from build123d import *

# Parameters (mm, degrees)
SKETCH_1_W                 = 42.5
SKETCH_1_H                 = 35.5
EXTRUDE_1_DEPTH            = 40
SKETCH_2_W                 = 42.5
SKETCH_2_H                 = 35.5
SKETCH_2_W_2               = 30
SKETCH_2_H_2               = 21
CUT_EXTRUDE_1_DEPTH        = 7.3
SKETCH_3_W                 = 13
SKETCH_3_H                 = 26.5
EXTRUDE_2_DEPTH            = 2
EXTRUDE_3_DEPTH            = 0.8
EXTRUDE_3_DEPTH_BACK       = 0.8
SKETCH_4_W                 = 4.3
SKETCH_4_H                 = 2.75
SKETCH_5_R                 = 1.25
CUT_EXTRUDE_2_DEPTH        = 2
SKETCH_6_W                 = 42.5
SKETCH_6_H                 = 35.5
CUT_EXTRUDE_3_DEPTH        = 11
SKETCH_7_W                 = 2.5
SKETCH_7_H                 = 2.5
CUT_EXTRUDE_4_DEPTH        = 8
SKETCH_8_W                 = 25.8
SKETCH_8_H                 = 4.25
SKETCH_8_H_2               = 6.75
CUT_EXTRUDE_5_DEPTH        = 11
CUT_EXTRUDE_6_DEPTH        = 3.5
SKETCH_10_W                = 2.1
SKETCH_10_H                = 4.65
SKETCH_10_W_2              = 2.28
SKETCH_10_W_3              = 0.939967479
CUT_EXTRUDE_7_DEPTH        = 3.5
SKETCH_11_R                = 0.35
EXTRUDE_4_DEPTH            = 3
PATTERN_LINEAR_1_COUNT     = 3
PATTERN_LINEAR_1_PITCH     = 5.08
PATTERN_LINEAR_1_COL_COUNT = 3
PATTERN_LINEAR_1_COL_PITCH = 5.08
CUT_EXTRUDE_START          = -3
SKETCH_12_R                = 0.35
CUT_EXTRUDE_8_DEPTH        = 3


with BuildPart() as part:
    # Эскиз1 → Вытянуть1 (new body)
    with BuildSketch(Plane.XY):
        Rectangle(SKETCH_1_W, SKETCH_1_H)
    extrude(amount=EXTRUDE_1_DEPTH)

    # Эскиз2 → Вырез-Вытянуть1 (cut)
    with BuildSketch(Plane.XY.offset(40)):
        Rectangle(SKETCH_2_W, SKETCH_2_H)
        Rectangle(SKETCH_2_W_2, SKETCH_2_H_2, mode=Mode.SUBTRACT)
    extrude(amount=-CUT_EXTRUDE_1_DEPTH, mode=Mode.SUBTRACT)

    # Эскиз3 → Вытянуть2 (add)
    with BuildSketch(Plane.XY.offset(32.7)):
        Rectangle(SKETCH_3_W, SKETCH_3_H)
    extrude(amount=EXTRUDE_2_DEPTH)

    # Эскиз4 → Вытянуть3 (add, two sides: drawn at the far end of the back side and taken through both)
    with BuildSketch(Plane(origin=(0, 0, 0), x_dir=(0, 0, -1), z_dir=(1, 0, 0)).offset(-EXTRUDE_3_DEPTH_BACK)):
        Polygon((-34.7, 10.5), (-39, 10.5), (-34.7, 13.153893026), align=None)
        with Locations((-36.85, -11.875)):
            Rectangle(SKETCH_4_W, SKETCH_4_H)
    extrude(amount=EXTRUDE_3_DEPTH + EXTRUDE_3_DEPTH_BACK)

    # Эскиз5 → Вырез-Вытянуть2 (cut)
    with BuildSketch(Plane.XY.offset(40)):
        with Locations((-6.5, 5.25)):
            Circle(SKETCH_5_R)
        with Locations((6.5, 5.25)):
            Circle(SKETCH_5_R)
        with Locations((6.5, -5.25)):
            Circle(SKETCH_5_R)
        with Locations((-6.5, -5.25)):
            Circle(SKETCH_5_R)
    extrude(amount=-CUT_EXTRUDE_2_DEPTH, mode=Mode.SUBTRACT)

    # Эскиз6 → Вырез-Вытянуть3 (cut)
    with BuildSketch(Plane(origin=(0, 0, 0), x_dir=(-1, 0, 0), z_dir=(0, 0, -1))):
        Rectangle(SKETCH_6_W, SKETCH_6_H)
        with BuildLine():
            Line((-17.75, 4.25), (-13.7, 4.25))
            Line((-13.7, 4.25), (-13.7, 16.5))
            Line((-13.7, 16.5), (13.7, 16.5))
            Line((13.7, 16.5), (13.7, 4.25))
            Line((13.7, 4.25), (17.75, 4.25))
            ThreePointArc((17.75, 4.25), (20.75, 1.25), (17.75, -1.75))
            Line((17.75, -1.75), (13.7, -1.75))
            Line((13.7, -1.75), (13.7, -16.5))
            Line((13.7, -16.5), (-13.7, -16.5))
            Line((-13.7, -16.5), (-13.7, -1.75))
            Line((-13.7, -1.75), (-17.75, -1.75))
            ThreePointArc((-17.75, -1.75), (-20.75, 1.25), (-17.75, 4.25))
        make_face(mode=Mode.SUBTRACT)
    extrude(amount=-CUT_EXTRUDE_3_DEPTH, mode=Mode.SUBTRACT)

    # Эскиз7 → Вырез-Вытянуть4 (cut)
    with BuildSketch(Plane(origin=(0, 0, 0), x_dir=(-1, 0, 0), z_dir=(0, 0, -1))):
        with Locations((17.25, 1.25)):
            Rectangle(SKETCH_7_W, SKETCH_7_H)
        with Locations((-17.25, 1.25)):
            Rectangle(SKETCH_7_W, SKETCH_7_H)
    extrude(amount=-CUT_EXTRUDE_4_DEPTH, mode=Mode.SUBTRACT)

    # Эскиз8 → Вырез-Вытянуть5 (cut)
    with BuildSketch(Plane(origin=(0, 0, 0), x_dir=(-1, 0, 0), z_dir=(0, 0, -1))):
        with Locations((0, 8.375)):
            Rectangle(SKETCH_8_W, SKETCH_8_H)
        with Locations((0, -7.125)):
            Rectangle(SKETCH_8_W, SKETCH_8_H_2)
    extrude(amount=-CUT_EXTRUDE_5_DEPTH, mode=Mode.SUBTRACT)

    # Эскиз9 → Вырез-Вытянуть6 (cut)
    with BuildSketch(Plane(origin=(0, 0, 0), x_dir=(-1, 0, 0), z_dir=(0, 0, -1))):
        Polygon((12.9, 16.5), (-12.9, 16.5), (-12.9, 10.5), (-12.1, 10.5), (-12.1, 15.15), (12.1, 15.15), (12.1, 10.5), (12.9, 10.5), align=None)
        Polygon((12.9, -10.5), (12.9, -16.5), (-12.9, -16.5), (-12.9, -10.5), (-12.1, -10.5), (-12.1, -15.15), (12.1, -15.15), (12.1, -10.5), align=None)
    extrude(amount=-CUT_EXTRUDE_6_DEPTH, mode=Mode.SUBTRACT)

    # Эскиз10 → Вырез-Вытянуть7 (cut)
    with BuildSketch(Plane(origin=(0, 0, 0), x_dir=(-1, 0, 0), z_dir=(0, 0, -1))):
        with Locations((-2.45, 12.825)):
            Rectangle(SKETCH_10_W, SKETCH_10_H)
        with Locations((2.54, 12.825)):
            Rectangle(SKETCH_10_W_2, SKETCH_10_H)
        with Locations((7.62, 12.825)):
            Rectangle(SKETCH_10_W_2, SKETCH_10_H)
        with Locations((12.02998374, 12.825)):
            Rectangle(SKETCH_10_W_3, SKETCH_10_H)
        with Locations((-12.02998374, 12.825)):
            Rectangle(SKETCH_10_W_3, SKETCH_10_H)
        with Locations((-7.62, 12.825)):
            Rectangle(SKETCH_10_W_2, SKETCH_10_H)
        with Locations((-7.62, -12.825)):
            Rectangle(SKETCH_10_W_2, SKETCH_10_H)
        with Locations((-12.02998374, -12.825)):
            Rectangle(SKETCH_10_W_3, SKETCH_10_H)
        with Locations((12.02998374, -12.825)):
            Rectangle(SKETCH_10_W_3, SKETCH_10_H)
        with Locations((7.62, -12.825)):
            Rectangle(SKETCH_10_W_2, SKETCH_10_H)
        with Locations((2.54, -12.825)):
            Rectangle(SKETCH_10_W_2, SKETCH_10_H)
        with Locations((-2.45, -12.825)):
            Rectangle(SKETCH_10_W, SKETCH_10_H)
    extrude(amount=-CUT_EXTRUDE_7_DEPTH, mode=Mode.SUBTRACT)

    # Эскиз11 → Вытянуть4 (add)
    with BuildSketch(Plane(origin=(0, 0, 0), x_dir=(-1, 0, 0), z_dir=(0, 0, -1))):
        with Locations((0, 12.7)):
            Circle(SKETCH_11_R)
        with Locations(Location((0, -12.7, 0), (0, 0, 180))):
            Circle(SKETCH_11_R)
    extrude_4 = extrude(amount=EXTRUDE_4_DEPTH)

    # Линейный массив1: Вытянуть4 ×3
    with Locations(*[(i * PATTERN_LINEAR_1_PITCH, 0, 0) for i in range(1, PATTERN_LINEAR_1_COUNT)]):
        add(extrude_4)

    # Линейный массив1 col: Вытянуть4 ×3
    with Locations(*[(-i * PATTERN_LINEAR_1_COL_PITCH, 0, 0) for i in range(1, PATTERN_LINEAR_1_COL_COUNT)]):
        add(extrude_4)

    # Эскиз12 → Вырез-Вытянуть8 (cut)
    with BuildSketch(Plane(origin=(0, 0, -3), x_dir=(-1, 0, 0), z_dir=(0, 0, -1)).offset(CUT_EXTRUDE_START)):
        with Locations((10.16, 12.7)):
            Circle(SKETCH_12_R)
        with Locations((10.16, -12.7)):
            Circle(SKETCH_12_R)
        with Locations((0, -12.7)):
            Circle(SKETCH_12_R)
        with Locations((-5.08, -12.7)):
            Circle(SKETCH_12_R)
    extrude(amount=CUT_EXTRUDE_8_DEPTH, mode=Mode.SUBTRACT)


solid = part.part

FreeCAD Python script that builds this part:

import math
import FreeCAD as App
import Part
import Sketcher

doc = App.newDocument("Part")
params = doc.addObject("Spreadsheet::Sheet", "Params")
for row, (alias, value) in enumerate([
    ("sketch1_width", "42.5 mm"),
    ("sketch1_height", "35.5 mm"),
    ("pad1_length", "40 mm"),
    ("sketch2_width", "30 mm"),
    ("sketch2_height", "21 mm"),
    ("sketch2_width2", "42.5 mm"),
    ("sketch2_height2", "35.5 mm"),
    ("pocket1_length", "7.3 mm"),
    ("sketch3_width", "13 mm"),
    ("sketch3_height", "26.5 mm"),
    ("pad2_length", "2 mm"),
    ("sketch4_height", "4.3 mm"),
    ("sketch4_width", "2.75 mm"),
    ("pad3_length", "0.8 mm"),
    ("pad3_length2", "0.8 mm"),
    ("sketch5_diameter", "2.5 mm"),
    ("pocket2_length", "2 mm"),
    ("sketch6_radius", "3 mm"),
    ("sketch6_width", "42.5 mm"),
    ("sketch6_width2", "27.4 mm"),
    ("sketch6_height", "35.5 mm"),
    ("sketch6_height2", "12.25 mm"),
    ("pocket3_length", "11 mm"),
    ("sketch7_width", "2.5 mm"),
    ("pocket4_length", "8 mm"),
    ("sketch8_width", "25.8 mm"),
    ("sketch8_height", "4.25 mm"),
    ("pocket5_length", "11 mm"),
    ("sketch9_height", "6 mm"),
    ("sketch9_width", "25.8 mm"),
    ("sketch9_width2", "0.8 mm"),
    ("sketch9_height2", "4.65 mm"),
    ("pocket6_length", "3.5 mm"),
    ("sketch10_width", "2.1 mm"),
    ("sketch10_width2", "2.28 mm"),
    ("sketch10_height", "4.65 mm"),
    ("pocket7_length", "3.5 mm"),
    ("sketch11_diameter", "0.7 mm"),
    ("pad4_length", "3 mm"),
    ("linearpattern_pitch", "5.08 mm"),
    ("linearpattern2_pitch", "5.08 mm"),
    ("sketch12_diameter", "0.7 mm"),
    ("pocket8_length", "3 mm"),
], start=1):
    params.set(f"A{row}", alias)
    params.set(f"B{row}", "=" + value)
    params.setAlias(f"B{row}", alias)

body = doc.addObject("PartDesign::Body", "Body")

# Sketch on XY plane
sketch1 = body.newObject("Sketcher::SketchObject", "Sketch")
sketch1.AttachmentSupport = (doc.getObject("XY_Plane"), [""])
sketch1.MapMode = "FlatFace"
sketch1.addGeometry(Part.LineSegment(App.Vector(-21, 18, 0), App.Vector(-21, -18, 0)), False)
sketch1.addGeometry(Part.LineSegment(App.Vector(-21, -18, 0), App.Vector(21, -18, 0)), False)
sketch1.addGeometry(Part.LineSegment(App.Vector(21, -18, 0), App.Vector(21, 18, 0)), False)
sketch1.addGeometry(Part.LineSegment(App.Vector(21, 18, 0), App.Vector(-21, 18, 0)), False)
sketch1.addConstraint(Sketcher.Constraint("Coincident", 0, 2, 1, 1))
sketch1.addConstraint(Sketcher.Constraint("Coincident", 1, 2, 2, 1))
sketch1.addConstraint(Sketcher.Constraint("Coincident", 2, 2, 3, 1))
sketch1.addConstraint(Sketcher.Constraint("Coincident", 3, 2, 0, 1))
sketch1.addConstraint(Sketcher.Constraint("Vertical", 0))
sketch1.addConstraint(Sketcher.Constraint("Horizontal", 1))
sketch1.addConstraint(Sketcher.Constraint("Vertical", 2))
sketch1.addConstraint(Sketcher.Constraint("Horizontal", 3))
sketch1.addConstraint(Sketcher.Constraint("Symmetric", 0, 2, 2, 2, -1, 1))
sketch1.addConstraint(Sketcher.Constraint("DistanceX", 1, 1, 1, 2, 42.5))
sketch1.addConstraint(Sketcher.Constraint("DistanceY", 0, 2, 0, 1, 35.5))
sketch1.setExpression("Constraints[9]", "Params.sketch1_width")
sketch1.setExpression("Constraints[10]", "Params.sketch1_height")
pad1 = body.newObject("PartDesign::Pad", "Pad")
pad1.Profile = sketch1
pad1.setExpression("Length", "Params.pad1_length")

# Sketch on XY plane
sketch2 = body.newObject("Sketcher::SketchObject", "Sketch001")
sketch2.AttachmentSupport = (doc.getObject("XY_Plane"), [""])
sketch2.MapMode = "FlatFace"
sketch2.AttachmentOffset = App.Placement(App.Vector(0, 0, 40), App.Rotation())
sketch2.addGeometry(Part.LineSegment(App.Vector(-21, 18, 0), App.Vector(-21, -18, 0)), False)
sketch2.addGeometry(Part.LineSegment(App.Vector(-21, -18, 0), App.Vector(21, -18, 0)), False)
sketch2.addGeometry(Part.LineSegment(App.Vector(21, -18, 0), App.Vector(21, 18, 0)), False)
sketch2.addGeometry(Part.LineSegment(App.Vector(21, 18, 0), App.Vector(-21, 18, 0)), False)
sketch2.addGeometry(Part.LineSegment(App.Vector(15, -10, 0), App.Vector(-15, -10, 0)), False)
sketch2.addGeometry(Part.LineSegment(App.Vector(-15, -10, 0), App.Vector(-15, 10, 0)), False)
sketch2.addGeometry(Part.LineSegment(App.Vector(-15, 10, 0), App.Vector(15, 10, 0)), False)
sketch2.addGeometry(Part.LineSegment(App.Vector(15, 10, 0), App.Vector(15, -10, 0)), False)
sketch2.addConstraint(Sketcher.Constraint("Coincident", 0, 2, 1, 1))
sketch2.addConstraint(Sketcher.Constraint("Coincident", 1, 2, 2, 1))
sketch2.addConstraint(Sketcher.Constraint("Coincident", 2, 2, 3, 1))
sketch2.addConstraint(Sketcher.Constraint("Coincident", 3, 2, 0, 1))
sketch2.addConstraint(Sketcher.Constraint("Coincident", 4, 2, 5, 1))
sketch2.addConstraint(Sketcher.Constraint("Coincident", 5, 2, 6, 1))
sketch2.addConstraint(Sketcher.Constraint("Coincident", 6, 2, 7, 1))
sketch2.addConstraint(Sketcher.Constraint("Coincident", 7, 2, 4, 1))
sketch2.addConstraint(Sketcher.Constraint("Vertical", 0))
sketch2.addConstraint(Sketcher.Constraint("Horizontal", 1))
sketch2.addConstraint(Sketcher.Constraint("Vertical", 2))
sketch2.addConstraint(Sketcher.Constraint("Horizontal", 3))
sketch2.addConstraint(Sketcher.Constraint("Horizontal", 4))
sketch2.addConstraint(Sketcher.Constraint("Vertical", 5))
sketch2.addConstraint(Sketcher.Constraint("Horizontal", 6))
sketch2.addConstraint(Sketcher.Constraint("Vertical", 7))
sketch2.addConstraint(Sketcher.Constraint("Symmetric", 0, 2, 2, 2, -1, 1))
sketch2.addConstraint(Sketcher.Constraint("Symmetric", 4, 2, 6, 2, -1, 1))
sketch2.addConstraint(Sketcher.Constraint("DistanceX", 4, 2, 4, 1, 30.0))
sketch2.addConstraint(Sketcher.Constraint("DistanceY", 5, 1, 5, 2, 21.0))
sketch2.addConstraint(Sketcher.Constraint("DistanceX", 1, 1, 1, 2, 42.5))
sketch2.addConstraint(Sketcher.Constraint("DistanceY", 0, 2, 0, 1, 35.5))
sketch2.setExpression("Constraints[18]", "Params.sketch2_width")
sketch2.setExpression("Constraints[19]", "Params.sketch2_height")
sketch2.setExpression("Constraints[20]", "Params.sketch2_width2")
sketch2.setExpression("Constraints[21]", "Params.sketch2_height2")
pocket1 = body.newObject("PartDesign::Pocket", "Pocket")
pocket1.Profile = sketch2
pocket1.setExpression("Length", "Params.pocket1_length")

# Sketch on XY plane
sketch3 = body.newObject("Sketcher::SketchObject", "Sketch002")
sketch3.AttachmentSupport = (doc.getObject("XY_Plane"), [""])
sketch3.MapMode = "FlatFace"
sketch3.AttachmentOffset = App.Placement(App.Vector(0, 0, 32.7), App.Rotation())
sketch3.addGeometry(Part.LineSegment(App.Vector(-6, 13, 0), App.Vector(-6, -13, 0)), False)
sketch3.addGeometry(Part.LineSegment(App.Vector(-6, -13, 0), App.Vector(6, -13, 0)), False)
sketch3.addGeometry(Part.LineSegment(App.Vector(6, -13, 0), App.Vector(6, 13, 0)), False)
sketch3.addGeometry(Part.LineSegment(App.Vector(6, 13, 0), App.Vector(-6, 13, 0)), False)
sketch3.addConstraint(Sketcher.Constraint("Coincident", 0, 2, 1, 1))
sketch3.addConstraint(Sketcher.Constraint("Coincident", 1, 2, 2, 1))
sketch3.addConstraint(Sketcher.Constraint("Coincident", 2, 2, 3, 1))
sketch3.addConstraint(Sketcher.Constraint("Coincident", 3, 2, 0, 1))
sketch3.addConstraint(Sketcher.Constraint("Vertical", 0))
sketch3.addConstraint(Sketcher.Constraint("Horizontal", 1))
sketch3.addConstraint(Sketcher.Constraint("Vertical", 2))
sketch3.addConstraint(Sketcher.Constraint("Horizontal", 3))
sketch3.addConstraint(Sketcher.Constraint("Symmetric", 0, 2, 2, 2, -1, 1))
sketch3.addConstraint(Sketcher.Constraint("DistanceX", 1, 1, 1, 2, 13.0))
sketch3.addConstraint(Sketcher.Constraint("DistanceY", 0, 2, 0, 1, 26.5))
sketch3.setExpression("Constraints[9]", "Params.sketch3_width")
sketch3.setExpression("Constraints[10]", "Params.sketch3_height")
pad2 = body.newObject("PartDesign::Pad", "Pad001")
pad2.Profile = sketch3
pad2.setExpression("Length", "Params.pad2_length")

# Sketch on YZ plane
sketch4 = body.newObject("Sketcher::SketchObject", "Sketch003")
sketch4.AttachmentSupport = (doc.getObject("YZ_Plane"), [""])
sketch4.MapMode = "FlatFace"
sketch4.addGeometry(Part.LineSegment(App.Vector(10.5, 39, 0), App.Vector(10.5, 34.7, 0)), False)
sketch4.addGeometry(Part.LineSegment(App.Vector(10.5, 34.7, 0), App.Vector(13.2, 34.7, 0)), False)
sketch4.addGeometry(Part.LineSegment(App.Vector(13.2, 34.7, 0), App.Vector(10.5, 39, 0)), False)
sketch4.addGeometry(Part.LineSegment(App.Vector(-10.5, 39, 0), App.Vector(-13.2, 39, 0)), False)
sketch4.addGeometry(Part.LineSegment(App.Vector(-13.2, 39, 0), App.Vector(-13.2, 34.7, 0)), False)
sketch4.addGeometry(Part.LineSegment(App.Vector(-13.2, 34.7, 0), App.Vector(-10.5, 34.7, 0)), False)
sketch4.addGeometry(Part.LineSegment(App.Vector(-10.5, 34.7, 0), App.Vector(-10.5, 39, 0)), False)
sketch4.addConstraint(Sketcher.Constraint("Coincident", 0, 2, 1, 1))
sketch4.addConstraint(Sketcher.Constraint("Coincident", 1, 2, 2, 1))
sketch4.addConstraint(Sketcher.Constraint("Coincident", 2, 2, 0, 1))
sketch4.addConstraint(Sketcher.Constraint("Coincident", 3, 2, 4, 1))
sketch4.addConstraint(Sketcher.Constraint("Coincident", 4, 2, 5, 1))
sketch4.addConstraint(Sketcher.Constraint("Coincident", 5, 2, 6, 1))
sketch4.addConstraint(Sketcher.Constraint("Coincident", 6, 2, 3, 1))
sketch4.addConstraint(Sketcher.Constraint("Vertical", 0))
sketch4.addConstraint(Sketcher.Constraint("Horizontal", 1))
sketch4.addConstraint(Sketcher.Constraint("Horizontal", 3))
sketch4.addConstraint(Sketcher.Constraint("Vertical", 4))
sketch4.addConstraint(Sketcher.Constraint("Horizontal", 5))
sketch4.addConstraint(Sketcher.Constraint("Vertical", 6))
sketch4.addConstraint(Sketcher.Constraint("Symmetric", 0, 2, 5, 2, -2))
sketch4.addConstraint(Sketcher.Constraint("Horizontal", 2, 2, 3, 2))
sketch4.addConstraint(Sketcher.Constraint("DistanceY", 0, 2, 0, 1, 4.3))
sketch4.addConstraint(Sketcher.Constraint("DistanceY", -1, 1, 2, 2, 39.0))
sketch4.addConstraint(Sketcher.Constraint("DistanceX", 5, 2, 0, 2, 21.0))
sketch4.addConstraint(Sketcher.Constraint("DistanceX", 3, 2, 3, 1, 2.75))
sketch4.addConstraint(Sketcher.Constraint("DistanceX", 1, 1, 1, 2, 2.653893))
sketch4.setExpression("Constraints[15]", "Params.sketch4_height")
sketch4.setExpression("Constraints[18]", "Params.sketch4_width")
pad3 = body.newObject("PartDesign::Pad", "Pad002")
pad3.Profile = sketch4
pad3.Type = "TwoLengths"
pad3.setExpression("Length", "Params.pad3_length")
pad3.setExpression("Length2", "Params.pad3_length2")

# Sketch on XY plane
sketch5 = body.newObject("Sketcher::SketchObject", "Sketch004")
sketch5.AttachmentSupport = (doc.getObject("XY_Plane"), [""])
sketch5.MapMode = "FlatFace"
sketch5.AttachmentOffset = App.Placement(App.Vector(0, 0, 40), App.Rotation())
sketch5.addGeometry(Part.Circle(App.Vector(-6.5, 5.2, 0), App.Vector(0, 0, 1), 1.2), False)
sketch5.addGeometry(Part.Circle(App.Vector(6.5, 5.2, 0), App.Vector(0, 0, 1), 1.2), False)
sketch5.addGeometry(Part.Circle(App.Vector(6.5, -5.2, 0), App.Vector(0, 0, 1), 1.2), False)
sketch5.addGeometry(Part.Circle(App.Vector(-6.5, -5.2, 0), App.Vector(0, 0, 1), 1.2), False)
sketch5.addConstraint(Sketcher.Constraint("Equal", 0, 1))
sketch5.addConstraint(Sketcher.Constraint("Equal", 1, 2))
sketch5.addConstraint(Sketcher.Constraint("Equal", 2, 3))
sketch5.addConstraint(Sketcher.Constraint("Symmetric", 0, 3, 2, 3, -1, 1))
sketch5.addConstraint(Sketcher.Constraint("Symmetric", 1, 3, 3, 3, -1, 1))
sketch5.addConstraint(Sketcher.Constraint("Symmetric", 0, 3, 1, 3, -2))
sketch5.addConstraint(Sketcher.Constraint("Diameter", 0, 2.5))
sketch5.addConstraint(Sketcher.Constraint("DistanceX", 0, 3, 1, 3, 13.0))
sketch5.addConstraint(Sketcher.Constraint("DistanceY", 2, 3, 1, 3, 10.5))
sketch5.setExpression("Constraints[6]", "Params.sketch5_diameter")
pocket2 = body.newObject("PartDesign::Pocket", "Pocket001")
pocket2.Profile = sketch5
pocket2.setExpression("Length", "Params.pocket2_length")

# Sketch on XY plane
sketch6 = body.newObject("Sketcher::SketchObject", "Sketch005")
sketch6.AttachmentSupport = (doc.getObject("XY_Plane"), [""])
sketch6.MapMode = "FlatFace"
sketch6.addGeometry(Part.LineSegment(App.Vector(21.2, 17.8, 0), App.Vector(21.2, -17.8, 0)), False)
sketch6.addGeometry(Part.LineSegment(App.Vector(21.2, -17.8, 0), App.Vector(-21.2, -17.8, 0)), False)
sketch6.addGeometry(Part.LineSegment(App.Vector(-21.2, -17.8, 0), App.Vector(-21.2, 17.8, 0)), False)
sketch6.addGeometry(Part.LineSegment(App.Vector(-21.2, 17.8, 0), App.Vector(21.2, 17.8, 0)), False)
sketch6.addGeometry(Part.ArcOfCircle(Part.Circle(App.Vector(17.8, 1.2, 0), App.Vector(0, 0, 1), 3), math.radians(-90), math.radians(90)), False)
sketch6.addGeometry(Part.LineSegment(App.Vector(17.8, 4.2, 0), App.Vector(13.7, 4.2, 0)), False)
sketch6.addGeometry(Part.LineSegment(App.Vector(13.7, 4.2, 0), App.Vector(13.7, 16.5, 0)), False)
sketch6.addGeometry(Part.LineSegment(App.Vector(13.7, 16.5, 0), App.Vector(-13.7, 16.5, 0)), False)
sketch6.addGeometry(Part.LineSegment(App.Vector(-13.7, 16.5, 0), App.Vector(-13.7, 4.2, 0)), False)
sketch6.addGeometry(Part.LineSegment(App.Vector(-13.7, 4.2, 0), App.Vector(-17.8, 4.2, 0)), False)
sketch6.addGeometry(Part.ArcOfCircle(Part.Circle(App.Vector(-17.8, 1.2, 0), App.Vector(0, 0, 1), 3), math.radians(90), math.radians(270)), False)
sketch6.addGeometry(Part.LineSegment(App.Vector(-17.8, -1.8, 0), App.Vector(-13.7, -1.8, 0)), False)
sketch6.addGeometry(Part.LineSegment(App.Vector(-13.7, -1.8, 0), App.Vector(-13.7, -16.5, 0)), False)
sketch6.addGeometry(Part.LineSegment(App.Vector(-13.7, -16.5, 0), App.Vector(13.7, -16.5, 0)), False)
sketch6.addGeometry(Part.LineSegment(App.Vector(13.7, -16.5, 0), App.Vector(13.7, -1.8, 0)), False)
sketch6.addGeometry(Part.LineSegment(App.Vector(13.7, -1.8, 0), App.Vector(17.8, -1.8, 0)), False)
sketch6.addConstraint(Sketcher.Constraint("Coincident", 0, 2, 1, 1))
sketch6.addConstraint(Sketcher.Constraint("Coincident", 1, 2, 2, 1))
sketch6.addConstraint(Sketcher.Constraint("Coincident", 2, 2, 3, 1))
sketch6.addConstraint(Sketcher.Constraint("Coincident", 3, 2, 0, 1))
sketch6.addConstraint(Sketcher.Constraint("Tangent", 4, 2, 5, 1))
sketch6.addConstraint(Sketcher.Constraint("Coincident", 5, 2, 6, 1))
sketch6.addConstraint(Sketcher.Constraint("Coincident", 6, 2, 7, 1))
sketch6.addConstraint(Sketcher.Constraint("Coincident", 7, 2, 8, 1))
sketch6.addConstraint(Sketcher.Constraint("Coincident", 8, 2, 9, 1))
sketch6.addConstraint(Sketcher.Constraint("Tangent", 9, 2, 10, 1))
sketch6.addConstraint(Sketcher.Constraint("Tangent", 10, 2, 11, 1))
sketch6.addConstraint(Sketcher.Constraint("Coincident", 11, 2, 12, 1))
sketch6.addConstraint(Sketcher.Constraint("Coincident", 12, 2, 13, 1))
sketch6.addConstraint(Sketcher.Constraint("Coincident", 13, 2, 14, 1))
sketch6.addConstraint(Sketcher.Constraint("Coincident", 14, 2, 15, 1))
sketch6.addConstraint(Sketcher.Constraint("Tangent", 15, 2, 4, 1))
sketch6.addConstraint(Sketcher.Constraint("Vertical", 0))
sketch6.addConstraint(Sketcher.Constraint("Horizontal", 1))
sketch6.addConstraint(Sketcher.Constraint("Vertical", 2))
sketch6.addConstraint(Sketcher.Constraint("Horizontal", 3))
sketch6.addConstraint(Sketcher.Constraint("Horizontal", 5))
sketch6.addConstraint(Sketcher.Constraint("Vertical", 6))
sketch6.addConstraint(Sketcher.Constraint("Horizontal", 7))
sketch6.addConstraint(Sketcher.Constraint("Vertical", 8))
sketch6.addConstraint(Sketcher.Constraint("Horizontal", 9))
sketch6.addConstraint(Sketcher.Constraint("Horizontal", 11))
sketch6.addConstraint(Sketcher.Constraint("Vertical", 12))
sketch6.addConstraint(Sketcher.Constraint("Horizontal", 13))
sketch6.addConstraint(Sketcher.Constraint("Vertical", 14))
sketch6.addConstraint(Sketcher.Constraint("Horizontal", 15))
sketch6.addConstraint(Sketcher.Constraint("Equal", 4, 10))
sketch6.addConstraint(Sketcher.Constraint("Symmetric", 0, 2, 2, 2, -1, 1))
sketch6.addConstraint(Sketcher.Constraint("Symmetric", 6, 2, 12, 2, -1, 1))
sketch6.addConstraint(Sketcher.Constraint("Symmetric", 4, 3, 10, 3, -2))
sketch6.addConstraint(Sketcher.Constraint("Vertical", 8, 2, 11, 2))
sketch6.addConstraint(Sketcher.Constraint("Vertical", 6, 2, 13, 2))
sketch6.addConstraint(Sketcher.Constraint("Radius", 4, 3.0))
sketch6.addConstraint(Sketcher.Constraint("DistanceX", 1, 2, 1, 1, 42.5))
sketch6.addConstraint(Sketcher.Constraint("DistanceX", 7, 2, 7, 1, 27.4))
sketch6.addConstraint(Sketcher.Constraint("DistanceY", 0, 2, 0, 1, 35.5))
sketch6.addConstraint(Sketcher.Constraint("DistanceY", 0, 2, 4, 3, 19.0))
sketch6.addConstraint(Sketcher.Constraint("DistanceX", 10, 3, 0, 2, 39.0))
sketch6.addConstraint(Sketcher.Constraint("DistanceY", 6, 1, 6, 2, 12.25))
sketch6.setExpression("Constraints[36]", "Params.sketch6_radius")
sketch6.setExpression("Constraints[37]", "Params.sketch6_width")
sketch6.setExpression("Constraints[38]", "Params.sketch6_width2")
sketch6.setExpression("Constraints[39]", "Params.sketch6_height")
sketch6.setExpression("Constraints[42]", "Params.sketch6_height2")
pocket3 = body.newObject("PartDesign::Pocket", "Pocket002")
pocket3.Profile = sketch6
pocket3.setExpression("Length", "Params.pocket3_length")
pocket3.Reversed = True

# Sketch on XY plane
sketch7 = body.newObject("Sketcher::SketchObject", "Sketch006")
sketch7.AttachmentSupport = (doc.getObject("XY_Plane"), [""])
sketch7.MapMode = "FlatFace"
sketch7.addGeometry(Part.LineSegment(App.Vector(-16, 2.5, 0), App.Vector(-16, 0, 0)), False)
sketch7.addGeometry(Part.LineSegment(App.Vector(-16, 0, 0), App.Vector(-18.5, 0, 0)), False)
sketch7.addGeometry(Part.LineSegment(App.Vector(-18.5, 0, 0), App.Vector(-18.5, 2.5, 0)), False)
sketch7.addGeometry(Part.LineSegment(App.Vector(-18.5, 2.5, 0), App.Vector(-16, 2.5, 0)), False)
sketch7.addGeometry(Part.LineSegment(App.Vector(18.5, 2.5, 0), App.Vector(18.5, 0, 0)), False)
sketch7.addGeometry(Part.LineSegment(App.Vector(18.5, 0, 0), App.Vector(16, 0, 0)), False)
sketch7.addGeometry(Part.LineSegment(App.Vector(16, 0, 0), App.Vector(16, 2.5, 0)), False)
sketch7.addGeometry(Part.LineSegment(App.Vector(16, 2.5, 0), App.Vector(18.5, 2.5, 0)), False)
sketch7.addConstraint(Sketcher.Constraint("Coincident", 0, 2, 1, 1))
sketch7.addConstraint(Sketcher.Constraint("Coincident", 1, 2, 2, 1))
sketch7.addConstraint(Sketcher.Constraint("Coincident", 2, 2, 3, 1))
sketch7.addConstraint(Sketcher.Constraint("Coincident", 3, 2, 0, 1))
sketch7.addConstraint(Sketcher.Constraint("Coincident", 4, 2, 5, 1))
sketch7.addConstraint(Sketcher.Constraint("Coincident", 5, 2, 6, 1))
sketch7.addConstraint(Sketcher.Constraint("Coincident", 6, 2, 7, 1))
sketch7.addConstraint(Sketcher.Constraint("Coincident", 7, 2, 4, 1))
sketch7.addConstraint(Sketcher.Constraint("Vertical", 0))
sketch7.addConstraint(Sketcher.Constraint("Horizontal", 1))
sketch7.addConstraint(Sketcher.Constraint("Vertical", 2))
sketch7.addConstraint(Sketcher.Constraint("Horizontal", 3))
sketch7.addConstraint(Sketcher.Constraint("Vertical", 4))
sketch7.addConstraint(Sketcher.Constraint("Horizontal", 5))
sketch7.addConstraint(Sketcher.Constraint("Vertical", 6))
sketch7.addConstraint(Sketcher.Constraint("Horizontal", 7))
sketch7.addConstraint(Sketcher.Constraint("Symmetric", 1, 2, 4, 2, -1, 1))
sketch7.addConstraint(Sketcher.Constraint("Symmetric", 0, 2, 5, 2, -2))
sketch7.addConstraint(Sketcher.Constraint("Horizontal", 3, 2, 6, 2))
sketch7.addConstraint(Sketcher.Constraint("Equal", 7, 0))
sketch7.addConstraint(Sketcher.Constraint("DistanceX", 1, 2, 1, 1, 2.5))
sketch7.addConstraint(Sketcher.Constraint("DistanceX", 0, 2, -1, 1, 16.0))
sketch7.setExpression("Constraints[20]", "Params.sketch7_width")
pocket4 = body.newObject("PartDesign::Pocket", "Pocket003")
pocket4.Profile = sketch7
pocket4.setExpression("Length", "Params.pocket4_length")
pocket4.Reversed = True

# Sketch on XY plane
sketch8 = body.newObject("Sketcher::SketchObject", "Sketch007")
sketch8.AttachmentSupport = (doc.getObject("XY_Plane"), [""])
sketch8.MapMode = "FlatFace"
sketch8.addGeometry(Part.LineSegment(App.Vector(12.9, 10.5, 0), App.Vector(12.9, 6.2, 0)), False)
sketch8.addGeometry(Part.LineSegment(App.Vector(12.9, 6.2, 0), App.Vector(-12.9, 6.2, 0)), False)
sketch8.addGeometry(Part.LineSegment(App.Vector(-12.9, 6.2, 0), App.Vector(-12.9, 10.5, 0)), False)
sketch8.addGeometry(Part.LineSegment(App.Vector(-12.9, 10.5, 0), App.Vector(12.9, 10.5, 0)), False)
sketch8.addGeometry(Part.LineSegment(App.Vector(12.9, -3.8, 0), App.Vector(12.9, -10.5, 0)), False)
sketch8.addGeometry(Part.LineSegment(App.Vector(12.9, -10.5, 0), App.Vector(-12.9, -10.5, 0)), False)
sketch8.addGeometry(Part.LineSegment(App.Vector(-12.9, -10.5, 0), App.Vector(-12.9, -3.8, 0)), False)
sketch8.addGeometry(Part.LineSegment(App.Vector(-12.9, -3.8, 0), App.Vector(12.9, -3.8, 0)), False)
sketch8.addConstraint(Sketcher.Constraint("Coincident", 0, 2, 1, 1))
sketch8.addConstraint(Sketcher.Constraint("Coincident", 1, 2, 2, 1))
sketch8.addConstraint(Sketcher.Constraint("Coincident", 2, 2, 3, 1))
sketch8.addConstraint(Sketcher.Constraint("Coincident", 3, 2, 0, 1))
sketch8.addConstraint(Sketcher.Constraint("Coincident", 4, 2, 5, 1))
sketch8.addConstraint(Sketcher.Constraint("Coincident", 5, 2, 6, 1))
sketch8.addConstraint(Sketcher.Constraint("Coincident", 6, 2, 7, 1))
sketch8.addConstraint(Sketcher.Constraint("Coincident", 7, 2, 4, 1))
sketch8.addConstraint(Sketcher.Constraint("Vertical", 0))
sketch8.addConstraint(Sketcher.Constraint("Horizontal", 1))
sketch8.addConstraint(Sketcher.Constraint("Vertical", 2))
sketch8.addConstraint(Sketcher.Constraint("Horizontal", 3))
sketch8.addConstraint(Sketcher.Constraint("Vertical", 4))
sketch8.addConstraint(Sketcher.Constraint("Horizontal", 5))
sketch8.addConstraint(Sketcher.Constraint("Vertical", 6))
sketch8.addConstraint(Sketcher.Constraint("Horizontal", 7))
sketch8.addConstraint(Sketcher.Constraint("Symmetric", 2, 2, 4, 2, -1, 1))
sketch8.addConstraint(Sketcher.Constraint("Vertical", 3, 2, 4, 2))
sketch8.addConstraint(Sketcher.Constraint("Vertical", 2, 2, 5, 2))
sketch8.addConstraint(Sketcher.Constraint("DistanceX", 1, 2, 1, 1, 25.8))
sketch8.addConstraint(Sketcher.Constraint("DistanceY", 4, 2, 3, 2, 21.0))
sketch8.addConstraint(Sketcher.Constraint("DistanceY", 6, 2, 1, 2, 10.0))
sketch8.addConstraint(Sketcher.Constraint("DistanceY", 0, 2, 0, 1, 4.25))
sketch8.setExpression("Constraints[19]", "Params.sketch8_width")
sketch8.setExpression("Constraints[22]", "Params.sketch8_height")
pocket5 = body.newObject("PartDesign::Pocket", "Pocket004")
pocket5.Profile = sketch8
pocket5.setExpression("Length", "Params.pocket5_length")
pocket5.Reversed = True

# Sketch on XY plane
sketch9 = body.newObject("Sketcher::SketchObject", "Sketch008")
sketch9.AttachmentSupport = (doc.getObject("XY_Plane"), [""])
sketch9.MapMode = "FlatFace"
sketch9.addGeometry(Part.LineSegment(App.Vector(-12.9, 16.5, 0), App.Vector(12.9, 16.5, 0)), False)
sketch9.addGeometry(Part.LineSegment(App.Vector(12.9, 16.5, 0), App.Vector(12.9, 10.5, 0)), False)
sketch9.addGeometry(Part.LineSegment(App.Vector(12.9, 10.5, 0), App.Vector(12.1, 10.5, 0)), False)
sketch9.addGeometry(Part.LineSegment(App.Vector(12.1, 10.5, 0), App.Vector(12.1, 15.2, 0)), False)
sketch9.addGeometry(Part.LineSegment(App.Vector(12.1, 15.2, 0), App.Vector(-12.1, 15.2, 0)), False)
sketch9.addGeometry(Part.LineSegment(App.Vector(-12.1, 15.2, 0), App.Vector(-12.1, 10.5, 0)), False)
sketch9.addGeometry(Part.LineSegment(App.Vector(-12.1, 10.5, 0), App.Vector(-12.9, 10.5, 0)), False)
sketch9.addGeometry(Part.LineSegment(App.Vector(-12.9, 10.5, 0), App.Vector(-12.9, 16.5, 0)), False)
sketch9.addGeometry(Part.LineSegment(App.Vector(-12.9, -16.5, 0), App.Vector(-12.9, -10.5, 0)), False)
sketch9.addGeometry(Part.LineSegment(App.Vector(-12.9, -10.5, 0), App.Vector(-12.1, -10.5, 0)), False)
sketch9.addGeometry(Part.LineSegment(App.Vector(-12.1, -10.5, 0), App.Vector(-12.1, -15.2, 0)), False)
sketch9.addGeometry(Part.LineSegment(App.Vector(-12.1, -15.2, 0), App.Vector(12.1, -15.2, 0)), False)
sketch9.addGeometry(Part.LineSegment(App.Vector(12.1, -15.2, 0), App.Vector(12.1, -10.5, 0)), False)
sketch9.addGeometry(Part.LineSegment(App.Vector(12.1, -10.5, 0), App.Vector(12.9, -10.5, 0)), False)
sketch9.addGeometry(Part.LineSegment(App.Vector(12.9, -10.5, 0), App.Vector(12.9, -16.5, 0)), False)
sketch9.addGeometry(Part.LineSegment(App.Vector(12.9, -16.5, 0), App.Vector(-12.9, -16.5, 0)), False)
sketch9.addConstraint(Sketcher.Constraint("Coincident", 0, 2, 1, 1))
sketch9.addConstraint(Sketcher.Constraint("Coincident", 1, 2, 2, 1))
sketch9.addConstraint(Sketcher.Constraint("Coincident", 2, 2, 3, 1))
sketch9.addConstraint(Sketcher.Constraint("Coincident", 3, 2, 4, 1))
sketch9.addConstraint(Sketcher.Constraint("Coincident", 4, 2, 5, 1))
sketch9.addConstraint(Sketcher.Constraint("Coincident", 5, 2, 6, 1))
sketch9.addConstraint(Sketcher.Constraint("Coincident", 6, 2, 7, 1))
sketch9.addConstraint(Sketcher.Constraint("Coincident", 7, 2, 0, 1))
sketch9.addConstraint(Sketcher.Constraint("Coincident", 8, 2, 9, 1))
sketch9.addConstraint(Sketcher.Constraint("Coincident", 9, 2, 10, 1))
sketch9.addConstraint(Sketcher.Constraint("Coincident", 10, 2, 11, 1))
sketch9.addConstraint(Sketcher.Constraint("Coincident", 11, 2, 12, 1))
sketch9.addConstraint(Sketcher.Constraint("Coincident", 12, 2, 13, 1))
sketch9.addConstraint(Sketcher.Constraint("Coincident", 13, 2, 14, 1))
sketch9.addConstraint(Sketcher.Constraint("Coincident", 14, 2, 15, 1))
sketch9.addConstraint(Sketcher.Constraint("Coincident", 15, 2, 8, 1))
sketch9.addConstraint(Sketcher.Constraint("Horizontal", 0))
sketch9.addConstraint(Sketcher.Constraint("Vertical", 1))
sketch9.addConstraint(Sketcher.Constraint("Horizontal", 2))
sketch9.addConstraint(Sketcher.Constraint("Vertical", 3))
sketch9.addConstraint(Sketcher.Constraint("Horizontal", 4))
sketch9.addConstraint(Sketcher.Constraint("Vertical", 5))
sketch9.addConstraint(Sketcher.Constraint("Horizontal", 6))
sketch9.addConstraint(Sketcher.Constraint("Vertical", 7))
sketch9.addConstraint(Sketcher.Constraint("Vertical", 8))
sketch9.addConstraint(Sketcher.Constraint("Horizontal", 9))
sketch9.addConstraint(Sketcher.Constraint("Vertical", 10))
sketch9.addConstraint(Sketcher.Constraint("Horizontal", 11))
sketch9.addConstraint(Sketcher.Constraint("Vertical", 12))
sketch9.addConstraint(Sketcher.Constraint("Horizontal", 13))
sketch9.addConstraint(Sketcher.Constraint("Vertical", 14))
sketch9.addConstraint(Sketcher.Constraint("Horizontal", 15))
sketch9.addConstraint(Sketcher.Constraint("Symmetric", 1, 2, 8, 2, -1, 1))
sketch9.addConstraint(Sketcher.Constraint("Symmetric", 3, 2, 10, 2, -1, 1))
sketch9.addConstraint(Sketcher.Constraint("Symmetric", 5, 2, 12, 2, -1, 1))
sketch9.addConstraint(Sketcher.Constraint("Symmetric", 7, 2, 14, 2, -1, 1))
sketch9.addConstraint(Sketcher.Constraint("Symmetric", 2, 2, 5, 2, -2))
sketch9.addConstraint(Sketcher.Constraint("Vertical", 7, 2, 8, 2))
sketch9.addConstraint(Sketcher.Constraint("DistanceY", 1, 2, 1, 1, 6.0))
sketch9.addConstraint(Sketcher.Constraint("DistanceX", 0, 1, 0, 2, 25.8))
sketch9.addConstraint(Sketcher.Constraint("DistanceX", 2, 2, 2, 1, 0.8))
sketch9.addConstraint(Sketcher.Constraint("DistanceY", 8, 2, 6, 2, 21.0))
sketch9.addConstraint(Sketcher.Constraint("DistanceY", 3, 1, 3, 2, 4.65))
sketch9.setExpression("Constraints[38]", "Params.sketch9_height")
sketch9.setExpression("Constraints[39]", "Params.sketch9_width")
sketch9.setExpression("Constraints[40]", "Params.sketch9_width2")
sketch9.setExpression("Constraints[42]", "Params.sketch9_height2")
pocket6 = body.newObject("PartDesign::Pocket", "Pocket005")
pocket6.Profile = sketch9
pocket6.setExpression("Length", "Params.pocket6_length")
pocket6.Reversed = True

# Sketch on XY plane
sketch10 = body.newObject("Sketcher::SketchObject", "Sketch009")
sketch10.AttachmentSupport = (doc.getObject("XY_Plane"), [""])
sketch10.MapMode = "FlatFace"
sketch10.addGeometry(Part.LineSegment(App.Vector(3.5, 15.15, 0), App.Vector(3.5, 10.5, 0)), False)
sketch10.addGeometry(Part.LineSegment(App.Vector(3.5, 10.5, 0), App.Vector(1.4, 10.5, 0)), False)
sketch10.addGeometry(Part.LineSegment(App.Vector(1.4, 10.5, 0), App.Vector(1.4, 15.15, 0)), False)
sketch10.addGeometry(Part.LineSegment(App.Vector(1.4, 15.15, 0), App.Vector(3.5, 15.15, 0)), False)
sketch10.addGeometry(Part.LineSegment(App.Vector(-1.4, 15.15, 0), App.Vector(-1.4, 10.5, 0)), False)
sketch10.addGeometry(Part.LineSegment(App.Vector(-1.4, 10.5, 0), App.Vector(-3.68, 10.5, 0)), False)
sketch10.addGeometry(Part.LineSegment(App.Vector(-3.68, 10.5, 0), App.Vector(-3.68, 15.15, 0)), False)
sketch10.addGeometry(Part.LineSegment(App.Vector(-3.68, 15.15, 0), App.Vector(-1.4, 15.15, 0)), False)
sketch10.addGeometry(Part.LineSegment(App.Vector(-6.48, 15.15, 0), App.Vector(-6.48, 10.5, 0)), False)
sketch10.addGeometry(Part.LineSegment(App.Vector(-6.48, 10.5, 0), App.Vector(-8.76, 10.5, 0)), False)
sketch10.addGeometry(Part.LineSegment(App.Vector(-8.76, 10.5, 0), App.Vector(-8.76, 15.15, 0)), False)
sketch10.addGeometry(Part.LineSegment(App.Vector(-8.76, 15.15, 0), App.Vector(-6.48, 15.15, 0)), False)
sketch10.addGeometry(Part.LineSegment(App.Vector(-11.56, 15.15, 0), App.Vector(-11.56, 10.5, 0)), False)
sketch10.addGeometry(Part.LineSegment(App.Vector(-11.56, 10.5, 0), App.Vector(-12.499967, 10.5, 0)), False)
sketch10.addGeometry(Part.LineSegment(App.Vector(-12.499967, 10.5, 0), App.Vector(-12.499967, 15.15, 0)), False)
sketch10.addGeometry(Part.LineSegment(App.Vector(-12.499967, 15.15, 0), App.Vector(-11.56, 15.15, 0)), False)
sketch10.addGeometry(Part.LineSegment(App.Vector(12.499967, 15.15, 0), App.Vector(12.499967, 10.5, 0)), False)
sketch10.addGeometry(Part.LineSegment(App.Vector(12.499967, 10.5, 0), App.Vector(11.56, 10.5, 0)), False)
sketch10.addGeometry(Part.LineSegment(App.Vector(11.56, 10.5, 0), App.Vector(11.56, 15.15, 0)), False)
sketch10.addGeometry(Part.LineSegment(App.Vector(11.56, 15.15, 0), App.Vector(12.499967, 15.15, 0)), False)
sketch10.addGeometry(Part.LineSegment(App.Vector(8.76, 15.15, 0), App.Vector(8.76, 10.5, 0)), False)
sketch10.addGeometry(Part.LineSegment(App.Vector(8.76, 10.5, 0), App.Vector(6.48, 10.5, 0)), False)
sketch10.addGeometry(Part.LineSegment(App.Vector(6.48, 10.5, 0), App.Vector(6.48, 15.15, 0)), False)
sketch10.addGeometry(Part.LineSegment(App.Vector(6.48, 15.15, 0), App.Vector(8.76, 15.15, 0)), False)
sketch10.addGeometry(Part.LineSegment(App.Vector(8.76, -10.5, 0), App.Vector(8.76, -15.15, 0)), False)
sketch10.addGeometry(Part.LineSegment(App.Vector(8.76, -15.15, 0), App.Vector(6.48, -15.15, 0)), False)
sketch10.addGeometry(Part.LineSegment(App.Vector(6.48, -15.15, 0), App.Vector(6.48, -10.5, 0)), False)
sketch10.addGeometry(Part.LineSegment(App.Vector(6.48, -10.5, 0), App.Vector(8.76, -10.5, 0)), False)
sketch10.addGeometry(Part.LineSegment(App.Vector(12.499967, -10.5, 0), App.Vector(12.499967, -15.15, 0)), False)
sketch10.addGeometry(Part.LineSegment(App.Vector(12.499967, -15.15, 0), App.Vector(11.56, -15.15, 0)), False)
sketch10.addGeometry(Part.LineSegment(App.Vector(11.56, -15.15, 0), App.Vector(11.56, -10.5, 0)), False)
sketch10.addGeometry(Part.LineSegment(App.Vector(11.56, -10.5, 0), App.Vector(12.499967, -10.5, 0)), False)
sketch10.addGeometry(Part.LineSegment(App.Vector(-11.56, -10.5, 0), App.Vector(-11.56, -15.15, 0)), False)
sketch10.addGeometry(Part.LineSegment(App.Vector(-11.56, -15.15, 0), App.Vector(-12.499967, -15.15, 0)), False)
sketch10.addGeometry(Part.LineSegment(App.Vector(-12.499967, -15.15, 0), App.Vector(-12.499967, -10.5, 0)), False)
sketch10.addGeometry(Part.LineSegment(App.Vector(-12.499967, -10.5, 0), App.Vector(-11.56, -10.5, 0)), False)
sketch10.addGeometry(Part.LineSegment(App.Vector(-6.48, -10.5, 0), App.Vector(-6.48, -15.15, 0)), False)
sketch10.addGeometry(Part.LineSegment(App.Vector(-6.48, -15.15, 0), App.Vector(-8.76, -15.15, 0)), False)
sketch10.addGeometry(Part.LineSegment(App.Vector(-8.76, -15.15, 0), App.Vector(-8.76, -10.5, 0)), False)
sketch10.addGeometry(Part.LineSegment(App.Vector(-8.76, -10.5, 0), App.Vector(-6.48, -10.5, 0)), False)
sketch10.addGeometry(Part.LineSegment(App.Vector(-1.4, -10.5, 0), App.Vector(-1.4, -15.15, 0)), False)
sketch10.addGeometry(Part.LineSegment(App.Vector(-1.4, -15.15, 0), App.Vector(-3.68, -15.15, 0)), False)
sketch10.addGeometry(Part.LineSegment(App.Vector(-3.68, -15.15, 0), App.Vector(-3.68, -10.5, 0)), False)
sketch10.addGeometry(Part.LineSegment(App.Vector(-3.68, -10.5, 0), App.Vector(-1.4, -10.5, 0)), False)
sketch10.addGeometry(Part.LineSegment(App.Vector(3.5, -10.5, 0), App.Vector(3.5, -15.15, 0)), False)
sketch10.addGeometry(Part.LineSegment(App.Vector(3.5, -15.15, 0), App.Vector(1.4, -15.15, 0)), False)
sketch10.addGeometry(Part.LineSegment(App.Vector(1.4, -15.15, 0), App.Vector(1.4, -10.5, 0)), False)
sketch10.addGeometry(Part.LineSegment(App.Vector(1.4, -10.5, 0), App.Vector(3.5, -10.5, 0)), False)
sketch10.addConstraint(Sketcher.Constraint("Coincident", 0, 2, 1, 1))
sketch10.addConstraint(Sketcher.Constraint("Coincident", 1, 2, 2, 1))
sketch10.addConstraint(Sketcher.Constraint("Coincident", 2, 2, 3, 1))
sketch10.addConstraint(Sketcher.Constraint("Coincident", 3, 2, 0, 1))
sketch10.addConstraint(Sketcher.Constraint("Coincident", 4, 2, 5, 1))
sketch10.addConstraint(Sketcher.Constraint("Coincident", 5, 2, 6, 1))
sketch10.addConstraint(Sketcher.Constraint("Coincident", 6, 2, 7, 1))
sketch10.addConstraint(Sketcher.Constraint("Coincident", 7, 2, 4, 1))
sketch10.addConstraint(Sketcher.Constraint("Coincident", 8, 2, 9, 1))
sketch10.addConstraint(Sketcher.Constraint("Coincident", 9, 2, 10, 1))
sketch10.addConstraint(Sketcher.Constraint("Coincident", 10, 2, 11, 1))
sketch10.addConstraint(Sketcher.Constraint("Coincident", 11, 2, 8, 1))
sketch10.addConstraint(Sketcher.Constraint("Coincident", 12, 2, 13, 1))
sketch10.addConstraint(Sketcher.Constraint("Coincident", 13, 2, 14, 1))
sketch10.addConstraint(Sketcher.Constraint("Coincident", 14, 2, 15, 1))
sketch10.addConstraint(Sketcher.Constraint("Coincident", 15, 2, 12, 1))
sketch10.addConstraint(Sketcher.Constraint("Coincident", 16, 2, 17, 1))
sketch10.addConstraint(Sketcher.Constraint("Coincident", 17, 2, 18, 1))
sketch10.addConstraint(Sketcher.Constraint("Coincident", 18, 2, 19, 1))
sketch10.addConstraint(Sketcher.Constraint("Coincident", 19, 2, 16, 1))
sketch10.addConstraint(Sketcher.Constraint("Coincident", 20, 2, 21, 1))
sketch10.addConstraint(Sketcher.Constraint("Coincident", 21, 2, 22, 1))
sketch10.addConstraint(Sketcher.Constraint("Coincident", 22, 2, 23, 1))
sketch10.addConstraint(Sketcher.Constraint("Coincident", 23, 2, 20, 1))
sketch10.addConstraint(Sketcher.Constraint("Coincident", 24, 2, 25, 1))
sketch10.addConstraint(Sketcher.Constraint("Coincident", 25, 2, 26, 1))
sketch10.addConstraint(Sketcher.Constraint("Coincident", 26, 2, 27, 1))
sketch10.addConstraint(Sketcher.Constraint("Coincident", 27, 2, 24, 1))
sketch10.addConstraint(Sketcher.Constraint("Coincident", 28, 2, 29, 1))
sketch10.addConstraint(Sketcher.Constraint("Coincident", 29, 2, 30, 1))
sketch10.addConstraint(Sketcher.Constraint("Coincident", 30, 2, 31, 1))
sketch10.addConstraint(Sketcher.Constraint("Coincident", 31, 2, 28, 1))
sketch10.addConstraint(Sketcher.Constraint("Coincident", 32, 2, 33, 1))
sketch10.addConstraint(Sketcher.Constraint("Coincident", 33, 2, 34, 1))
sketch10.addConstraint(Sketcher.Constraint("Coincident", 34, 2, 35, 1))
sketch10.addConstraint(Sketcher.Constraint("Coincident", 35, 2, 32, 1))
sketch10.addConstraint(Sketcher.Constraint("Coincident", 36, 2, 37, 1))
sketch10.addConstraint(Sketcher.Constraint("Coincident", 37, 2, 38, 1))
sketch10.addConstraint(Sketcher.Constraint("Coincident", 38, 2, 39, 1))
sketch10.addConstraint(Sketcher.Constraint("Coincident", 39, 2, 36, 1))
sketch10.addConstraint(Sketcher.Constraint("Coincident", 40, 2, 41, 1))
sketch10.addConstraint(Sketcher.Constraint("Coincident", 41, 2, 42, 1))
sketch10.addConstraint(Sketcher.Constraint("Coincident", 42, 2, 43, 1))
sketch10.addConstraint(Sketcher.Constraint("Coincident", 43, 2, 40, 1))
sketch10.addConstraint(Sketcher.Constraint("Coincident", 44, 2, 45, 1))
sketch10.addConstraint(Sketcher.Constraint("Coincident", 45, 2, 46, 1))
sketch10.addConstraint(Sketcher.Constraint("Coincident", 46, 2, 47, 1))
sketch10.addConstraint(Sketcher.Constraint("Coincident", 47, 2, 44, 1))
sketch10.addConstraint(Sketcher.Constraint("Vertical", 0))
sketch10.addConstraint(Sketcher.Constraint("Horizontal", 1))
sketch10.addConstraint(Sketcher.Constraint("Vertical", 2))
sketch10.addConstraint(Sketcher.Constraint("Horizontal", 3))
sketch10.addConstraint(Sketcher.Constraint("Vertical", 4))
sketch10.addConstraint(Sketcher.Constraint("Horizontal", 5))
sketch10.addConstraint(Sketcher.Constraint("Vertical", 6))
sketch10.addConstraint(Sketcher.Constraint("Horizontal", 7))
sketch10.addConstraint(Sketcher.Constraint("Vertical", 8))
sketch10.addConstraint(Sketcher.Constraint("Horizontal", 9))
sketch10.addConstraint(Sketcher.Constraint("Vertical", 10))
sketch10.addConstraint(Sketcher.Constraint("Horizontal", 11))
sketch10.addConstraint(Sketcher.Constraint("Vertical", 12))
sketch10.addConstraint(Sketcher.Constraint("Horizontal", 13))
sketch10.addConstraint(Sketcher.Constraint("Vertical", 14))
sketch10.addConstraint(Sketcher.Constraint("Horizontal", 15))
sketch10.addConstraint(Sketcher.Constraint("Vertical", 16))
sketch10.addConstraint(Sketcher.Constraint("Horizontal", 17))
sketch10.addConstraint(Sketcher.Constraint("Vertical", 18))
sketch10.addConstraint(Sketcher.Constraint("Horizontal", 19))
sketch10.addConstraint(Sketcher.Constraint("Vertical", 20))
sketch10.addConstraint(Sketcher.Constraint("Horizontal", 21))
sketch10.addConstraint(Sketcher.Constraint("Vertical", 22))
sketch10.addConstraint(Sketcher.Constraint("Horizontal", 23))
sketch10.addConstraint(Sketcher.Constraint("Vertical", 24))
sketch10.addConstraint(Sketcher.Constraint("Horizontal", 25))
sketch10.addConstraint(Sketcher.Constraint("Vertical", 26))
sketch10.addConstraint(Sketcher.Constraint("Horizontal", 27))
sketch10.addConstraint(Sketcher.Constraint("Vertical", 28))
sketch10.addConstraint(Sketcher.Constraint("Horizontal", 29))
sketch10.addConstraint(Sketcher.Constraint("Vertical", 30))
sketch10.addConstraint(Sketcher.Constraint("Horizontal", 31))
sketch10.addConstraint(Sketcher.Constraint("Vertical", 32))
sketch10.addConstraint(Sketcher.Constraint("Horizontal", 33))
sketch10.addConstraint(Sketcher.Constraint("Vertical", 34))
sketch10.addConstraint(Sketcher.Constraint("Horizontal", 35))
sketch10.addConstraint(Sketcher.Constraint("Vertical", 36))
sketch10.addConstraint(Sketcher.Constraint("Horizontal", 37))
sketch10.addConstraint(Sketcher.Constraint("Vertical", 38))
sketch10.addConstraint(Sketcher.Constraint("Horizontal", 39))
sketch10.addConstraint(Sketcher.Constraint("Vertical", 40))
sketch10.addConstraint(Sketcher.Constraint("Horizontal", 41))
sketch10.addConstraint(Sketcher.Constraint("Vertical", 42))
sketch10.addConstraint(Sketcher.Constraint("Horizontal", 43))
sketch10.addConstraint(Sketcher.Constraint("Vertical", 44))
sketch10.addConstraint(Sketcher.Constraint("Horizontal", 45))
sketch10.addConstraint(Sketcher.Constraint("Vertical", 46))
sketch10.addConstraint(Sketcher.Constraint("Horizontal", 47))
sketch10.addConstraint(Sketcher.Constraint("Symmetric", 10, 2, 24, 2, -1, 1))
sketch10.addConstraint(Sketcher.Constraint("Symmetric", 8, 2, 26, 2, -1, 1))
sketch10.addConstraint(Sketcher.Constraint("Symmetric", 14, 2, 28, 2, -1, 1))
sketch10.addConstraint(Sketcher.Constraint("Symmetric", 12, 2, 30, 2, -1, 1))
sketch10.addConstraint(Sketcher.Constraint("Symmetric", 18, 2, 32, 2, -1, 1))
sketch10.addConstraint(Sketcher.Constraint("Symmetric", 16, 2, 34, 2, -1, 1))
sketch10.addConstraint(Sketcher.Constraint("Symmetric", 22, 2, 36, 2, -1, 1))
sketch10.addConstraint(Sketcher.Constraint("Symmetric", 20, 2, 38, 2, -1, 1))
sketch10.addConstraint(Sketcher.Constraint("Symmetric", 2, 2, 40, 2, -1, 1))
sketch10.addConstraint(Sketcher.Constraint("Symmetric", 7, 2, 45, 2, -1, 1))
sketch10.addConstraint(Sketcher.Constraint("Symmetric", 1, 2, 4, 2, -2))
sketch10.addConstraint(Sketcher.Constraint("Symmetric", 13, 2, 16, 2, -2))
sketch10.addConstraint(Sketcher.Constraint("Symmetric", 15, 2, 18, 2, -2))
sketch10.addConstraint(Sketcher.Constraint("Symmetric", 9, 2, 20, 2, -2))
sketch10.addConstraint(Sketcher.Constraint("Symmetric", 11, 2, 22, 2, -2))
sketch10.addConstraint(Sketcher.Constraint("Symmetric", 6, 2, 41, 2, -1))
sketch10.addConstraint(Sketcher.Constraint("Symmetric", 0, 2, 47, 2, -1))
sketch10.addConstraint(Sketcher.Constraint("Horizontal", 5, 2, 8, 2))
sketch10.addConstraint(Sketcher.Constraint("Horizontal", 7, 2, 10, 2))
sketch10.addConstraint(Sketcher.Constraint("Horizontal", 9, 2, 12, 2))
sketch10.addConstraint(Sketcher.Constraint("Horizontal", 11, 2, 14, 2))
sketch10.addConstraint(Sketcher.Constraint("Horizontal", 39, 2, 42, 2))
sketch10.addConstraint(Sketcher.Constraint("Equal", 7, 9))
sketch10.addConstraint(Sketcher.Constraint("DistanceX", 1, 2, 1, 1, 2.1))
sketch10.addConstraint(Sketcher.Constraint("DistanceY", 26, 2, 21, 2, 21.0))
sketch10.addConstraint(Sketcher.Constraint("DistanceX", 5, 2, 5, 1, 2.28))
sketch10.addConstraint(Sketcher.Constraint("DistanceY", 0, 2, 0, 1, 4.65))
sketch10.addConstraint(Sketcher.Constraint("DistanceX", -1, 1, 0, 2, 3.5))
sketch10.addConstraint(Sketcher.Constraint("DistanceX", 8, 2, 5, 2, 2.8))
sketch10.addConstraint(Sketcher.Constraint("DistanceX", 12, 2, 9, 2, 2.8))
sketch10.addConstraint(Sketcher.Constraint("DistanceX", 13, 2, 13, 1, 0.939967))
sketch10.setExpression("Constraints[119]", "Params.sketch10_width")
sketch10.setExpression("Constraints[121]", "Params.sketch10_width2")
sketch10.setExpression("Constraints[122]", "Params.sketch10_height")
pocket7 = body.newObject("PartDesign::Pocket", "Pocket006")
pocket7.Profile = sketch10
pocket7.setExpression("Length", "Params.pocket7_length")
pocket7.Reversed = True

# Sketch on XY plane
sketch11 = body.newObject("Sketcher::SketchObject", "Sketch010")
sketch11.AttachmentSupport = (doc.getObject("XY_Plane"), [""])
sketch11.MapMode = "FlatFace"
sketch11.addGeometry(Part.Circle(App.Vector(0, 12.7, 0), App.Vector(0, 0, 1), 0.35), False)
sketch11.addGeometry(Part.Circle(App.Vector(0, -12.7, 0), App.Vector(0, 0, 1), 0.35), False)
sketch11.addConstraint(Sketcher.Constraint("Equal", 0, 1))
sketch11.addConstraint(Sketcher.Constraint("Symmetric", 0, 3, 1, 3, -1, 1))
sketch11.addConstraint(Sketcher.Constraint("PointOnObject", 0, 3, -2))
sketch11.addConstraint(Sketcher.Constraint("Diameter", 0, 0.7))
sketch11.addConstraint(Sketcher.Constraint("DistanceY", -1, 1, 0, 3, 12.7))
sketch11.setExpression("Constraints[3]", "Params.sketch11_diameter")
pad4 = body.newObject("PartDesign::Pad", "Pad003")
pad4.Profile = sketch11
pad4.setExpression("Length", "Params.pad4_length")
pad4.Reversed = True
doc.recompute()

linearpattern = body.newObject("PartDesign::LinearPattern", "LinearPattern")
linearpattern.Originals = [pad4]
linearpattern.Direction = (doc.getObject("X_Axis"), [""])
linearpattern.Mode = "offset"
linearpattern.setExpression("Offset", "Params.linearpattern_pitch")
linearpattern.Occurrences = 3
body.Tip = linearpattern
doc.recompute()

linearpattern2 = body.newObject("PartDesign::LinearPattern", "LinearPattern001")
linearpattern2.Originals = [pad4]
linearpattern2.Direction = (doc.getObject("X_Axis"), [""])
linearpattern2.Mode = "offset"
linearpattern2.setExpression("Offset", "Params.linearpattern2_pitch")
linearpattern2.Occurrences = 3
linearpattern2.Reversed = True
body.Tip = linearpattern2

# Sketch on XY plane
sketch12 = body.newObject("Sketcher::SketchObject", "Sketch011")
sketch12.AttachmentSupport = (doc.getObject("XY_Plane"), [""])
sketch12.MapMode = "FlatFace"
sketch12.addGeometry(Part.Circle(App.Vector(-10.16, 12.7, 0), App.Vector(0, 0, 1), 0.35), False)
sketch12.addGeometry(Part.Circle(App.Vector(-10.16, -12.7, 0), App.Vector(0, 0, 1), 0.35), False)
sketch12.addGeometry(Part.Circle(App.Vector(0, -12.7, 0), App.Vector(0, 0, 1), 0.35), False)
sketch12.addGeometry(Part.Circle(App.Vector(5.08, -12.7, 0), App.Vector(0, 0, 1), 0.35), False)
sketch12.addConstraint(Sketcher.Constraint("Equal", 0, 1))
sketch12.addConstraint(Sketcher.Constraint("Equal", 1, 2))
sketch12.addConstraint(Sketcher.Constraint("Equal", 2, 3))
sketch12.addConstraint(Sketcher.Constraint("Symmetric", 0, 3, 1, 3, -1))
sketch12.addConstraint(Sketcher.Constraint("PointOnObject", 2, 3, -2))
sketch12.addConstraint(Sketcher.Constraint("Horizontal", 1, 3, 2, 3))
sketch12.addConstraint(Sketcher.Constraint("Horizontal", 2, 3, 3, 3))
sketch12.addConstraint(Sketcher.Constraint("Diameter", 0, 0.7))
sketch12.addConstraint(Sketcher.Constraint("DistanceY", -1, 1, 0, 3, 12.7))
sketch12.addConstraint(Sketcher.Constraint("DistanceX", 0, 3, -1, 1, 10.16))
sketch12.addConstraint(Sketcher.Constraint("DistanceX", -1, 1, 3, 3, 5.08))
sketch12.setExpression("Constraints[7]", "Params.sketch12_diameter")
pocket8 = body.newObject("PartDesign::Pocket", "Pocket007")
pocket8.Profile = sketch12
pocket8.setExpression("Length", "Params.pocket8_length")

doc.recompute()
